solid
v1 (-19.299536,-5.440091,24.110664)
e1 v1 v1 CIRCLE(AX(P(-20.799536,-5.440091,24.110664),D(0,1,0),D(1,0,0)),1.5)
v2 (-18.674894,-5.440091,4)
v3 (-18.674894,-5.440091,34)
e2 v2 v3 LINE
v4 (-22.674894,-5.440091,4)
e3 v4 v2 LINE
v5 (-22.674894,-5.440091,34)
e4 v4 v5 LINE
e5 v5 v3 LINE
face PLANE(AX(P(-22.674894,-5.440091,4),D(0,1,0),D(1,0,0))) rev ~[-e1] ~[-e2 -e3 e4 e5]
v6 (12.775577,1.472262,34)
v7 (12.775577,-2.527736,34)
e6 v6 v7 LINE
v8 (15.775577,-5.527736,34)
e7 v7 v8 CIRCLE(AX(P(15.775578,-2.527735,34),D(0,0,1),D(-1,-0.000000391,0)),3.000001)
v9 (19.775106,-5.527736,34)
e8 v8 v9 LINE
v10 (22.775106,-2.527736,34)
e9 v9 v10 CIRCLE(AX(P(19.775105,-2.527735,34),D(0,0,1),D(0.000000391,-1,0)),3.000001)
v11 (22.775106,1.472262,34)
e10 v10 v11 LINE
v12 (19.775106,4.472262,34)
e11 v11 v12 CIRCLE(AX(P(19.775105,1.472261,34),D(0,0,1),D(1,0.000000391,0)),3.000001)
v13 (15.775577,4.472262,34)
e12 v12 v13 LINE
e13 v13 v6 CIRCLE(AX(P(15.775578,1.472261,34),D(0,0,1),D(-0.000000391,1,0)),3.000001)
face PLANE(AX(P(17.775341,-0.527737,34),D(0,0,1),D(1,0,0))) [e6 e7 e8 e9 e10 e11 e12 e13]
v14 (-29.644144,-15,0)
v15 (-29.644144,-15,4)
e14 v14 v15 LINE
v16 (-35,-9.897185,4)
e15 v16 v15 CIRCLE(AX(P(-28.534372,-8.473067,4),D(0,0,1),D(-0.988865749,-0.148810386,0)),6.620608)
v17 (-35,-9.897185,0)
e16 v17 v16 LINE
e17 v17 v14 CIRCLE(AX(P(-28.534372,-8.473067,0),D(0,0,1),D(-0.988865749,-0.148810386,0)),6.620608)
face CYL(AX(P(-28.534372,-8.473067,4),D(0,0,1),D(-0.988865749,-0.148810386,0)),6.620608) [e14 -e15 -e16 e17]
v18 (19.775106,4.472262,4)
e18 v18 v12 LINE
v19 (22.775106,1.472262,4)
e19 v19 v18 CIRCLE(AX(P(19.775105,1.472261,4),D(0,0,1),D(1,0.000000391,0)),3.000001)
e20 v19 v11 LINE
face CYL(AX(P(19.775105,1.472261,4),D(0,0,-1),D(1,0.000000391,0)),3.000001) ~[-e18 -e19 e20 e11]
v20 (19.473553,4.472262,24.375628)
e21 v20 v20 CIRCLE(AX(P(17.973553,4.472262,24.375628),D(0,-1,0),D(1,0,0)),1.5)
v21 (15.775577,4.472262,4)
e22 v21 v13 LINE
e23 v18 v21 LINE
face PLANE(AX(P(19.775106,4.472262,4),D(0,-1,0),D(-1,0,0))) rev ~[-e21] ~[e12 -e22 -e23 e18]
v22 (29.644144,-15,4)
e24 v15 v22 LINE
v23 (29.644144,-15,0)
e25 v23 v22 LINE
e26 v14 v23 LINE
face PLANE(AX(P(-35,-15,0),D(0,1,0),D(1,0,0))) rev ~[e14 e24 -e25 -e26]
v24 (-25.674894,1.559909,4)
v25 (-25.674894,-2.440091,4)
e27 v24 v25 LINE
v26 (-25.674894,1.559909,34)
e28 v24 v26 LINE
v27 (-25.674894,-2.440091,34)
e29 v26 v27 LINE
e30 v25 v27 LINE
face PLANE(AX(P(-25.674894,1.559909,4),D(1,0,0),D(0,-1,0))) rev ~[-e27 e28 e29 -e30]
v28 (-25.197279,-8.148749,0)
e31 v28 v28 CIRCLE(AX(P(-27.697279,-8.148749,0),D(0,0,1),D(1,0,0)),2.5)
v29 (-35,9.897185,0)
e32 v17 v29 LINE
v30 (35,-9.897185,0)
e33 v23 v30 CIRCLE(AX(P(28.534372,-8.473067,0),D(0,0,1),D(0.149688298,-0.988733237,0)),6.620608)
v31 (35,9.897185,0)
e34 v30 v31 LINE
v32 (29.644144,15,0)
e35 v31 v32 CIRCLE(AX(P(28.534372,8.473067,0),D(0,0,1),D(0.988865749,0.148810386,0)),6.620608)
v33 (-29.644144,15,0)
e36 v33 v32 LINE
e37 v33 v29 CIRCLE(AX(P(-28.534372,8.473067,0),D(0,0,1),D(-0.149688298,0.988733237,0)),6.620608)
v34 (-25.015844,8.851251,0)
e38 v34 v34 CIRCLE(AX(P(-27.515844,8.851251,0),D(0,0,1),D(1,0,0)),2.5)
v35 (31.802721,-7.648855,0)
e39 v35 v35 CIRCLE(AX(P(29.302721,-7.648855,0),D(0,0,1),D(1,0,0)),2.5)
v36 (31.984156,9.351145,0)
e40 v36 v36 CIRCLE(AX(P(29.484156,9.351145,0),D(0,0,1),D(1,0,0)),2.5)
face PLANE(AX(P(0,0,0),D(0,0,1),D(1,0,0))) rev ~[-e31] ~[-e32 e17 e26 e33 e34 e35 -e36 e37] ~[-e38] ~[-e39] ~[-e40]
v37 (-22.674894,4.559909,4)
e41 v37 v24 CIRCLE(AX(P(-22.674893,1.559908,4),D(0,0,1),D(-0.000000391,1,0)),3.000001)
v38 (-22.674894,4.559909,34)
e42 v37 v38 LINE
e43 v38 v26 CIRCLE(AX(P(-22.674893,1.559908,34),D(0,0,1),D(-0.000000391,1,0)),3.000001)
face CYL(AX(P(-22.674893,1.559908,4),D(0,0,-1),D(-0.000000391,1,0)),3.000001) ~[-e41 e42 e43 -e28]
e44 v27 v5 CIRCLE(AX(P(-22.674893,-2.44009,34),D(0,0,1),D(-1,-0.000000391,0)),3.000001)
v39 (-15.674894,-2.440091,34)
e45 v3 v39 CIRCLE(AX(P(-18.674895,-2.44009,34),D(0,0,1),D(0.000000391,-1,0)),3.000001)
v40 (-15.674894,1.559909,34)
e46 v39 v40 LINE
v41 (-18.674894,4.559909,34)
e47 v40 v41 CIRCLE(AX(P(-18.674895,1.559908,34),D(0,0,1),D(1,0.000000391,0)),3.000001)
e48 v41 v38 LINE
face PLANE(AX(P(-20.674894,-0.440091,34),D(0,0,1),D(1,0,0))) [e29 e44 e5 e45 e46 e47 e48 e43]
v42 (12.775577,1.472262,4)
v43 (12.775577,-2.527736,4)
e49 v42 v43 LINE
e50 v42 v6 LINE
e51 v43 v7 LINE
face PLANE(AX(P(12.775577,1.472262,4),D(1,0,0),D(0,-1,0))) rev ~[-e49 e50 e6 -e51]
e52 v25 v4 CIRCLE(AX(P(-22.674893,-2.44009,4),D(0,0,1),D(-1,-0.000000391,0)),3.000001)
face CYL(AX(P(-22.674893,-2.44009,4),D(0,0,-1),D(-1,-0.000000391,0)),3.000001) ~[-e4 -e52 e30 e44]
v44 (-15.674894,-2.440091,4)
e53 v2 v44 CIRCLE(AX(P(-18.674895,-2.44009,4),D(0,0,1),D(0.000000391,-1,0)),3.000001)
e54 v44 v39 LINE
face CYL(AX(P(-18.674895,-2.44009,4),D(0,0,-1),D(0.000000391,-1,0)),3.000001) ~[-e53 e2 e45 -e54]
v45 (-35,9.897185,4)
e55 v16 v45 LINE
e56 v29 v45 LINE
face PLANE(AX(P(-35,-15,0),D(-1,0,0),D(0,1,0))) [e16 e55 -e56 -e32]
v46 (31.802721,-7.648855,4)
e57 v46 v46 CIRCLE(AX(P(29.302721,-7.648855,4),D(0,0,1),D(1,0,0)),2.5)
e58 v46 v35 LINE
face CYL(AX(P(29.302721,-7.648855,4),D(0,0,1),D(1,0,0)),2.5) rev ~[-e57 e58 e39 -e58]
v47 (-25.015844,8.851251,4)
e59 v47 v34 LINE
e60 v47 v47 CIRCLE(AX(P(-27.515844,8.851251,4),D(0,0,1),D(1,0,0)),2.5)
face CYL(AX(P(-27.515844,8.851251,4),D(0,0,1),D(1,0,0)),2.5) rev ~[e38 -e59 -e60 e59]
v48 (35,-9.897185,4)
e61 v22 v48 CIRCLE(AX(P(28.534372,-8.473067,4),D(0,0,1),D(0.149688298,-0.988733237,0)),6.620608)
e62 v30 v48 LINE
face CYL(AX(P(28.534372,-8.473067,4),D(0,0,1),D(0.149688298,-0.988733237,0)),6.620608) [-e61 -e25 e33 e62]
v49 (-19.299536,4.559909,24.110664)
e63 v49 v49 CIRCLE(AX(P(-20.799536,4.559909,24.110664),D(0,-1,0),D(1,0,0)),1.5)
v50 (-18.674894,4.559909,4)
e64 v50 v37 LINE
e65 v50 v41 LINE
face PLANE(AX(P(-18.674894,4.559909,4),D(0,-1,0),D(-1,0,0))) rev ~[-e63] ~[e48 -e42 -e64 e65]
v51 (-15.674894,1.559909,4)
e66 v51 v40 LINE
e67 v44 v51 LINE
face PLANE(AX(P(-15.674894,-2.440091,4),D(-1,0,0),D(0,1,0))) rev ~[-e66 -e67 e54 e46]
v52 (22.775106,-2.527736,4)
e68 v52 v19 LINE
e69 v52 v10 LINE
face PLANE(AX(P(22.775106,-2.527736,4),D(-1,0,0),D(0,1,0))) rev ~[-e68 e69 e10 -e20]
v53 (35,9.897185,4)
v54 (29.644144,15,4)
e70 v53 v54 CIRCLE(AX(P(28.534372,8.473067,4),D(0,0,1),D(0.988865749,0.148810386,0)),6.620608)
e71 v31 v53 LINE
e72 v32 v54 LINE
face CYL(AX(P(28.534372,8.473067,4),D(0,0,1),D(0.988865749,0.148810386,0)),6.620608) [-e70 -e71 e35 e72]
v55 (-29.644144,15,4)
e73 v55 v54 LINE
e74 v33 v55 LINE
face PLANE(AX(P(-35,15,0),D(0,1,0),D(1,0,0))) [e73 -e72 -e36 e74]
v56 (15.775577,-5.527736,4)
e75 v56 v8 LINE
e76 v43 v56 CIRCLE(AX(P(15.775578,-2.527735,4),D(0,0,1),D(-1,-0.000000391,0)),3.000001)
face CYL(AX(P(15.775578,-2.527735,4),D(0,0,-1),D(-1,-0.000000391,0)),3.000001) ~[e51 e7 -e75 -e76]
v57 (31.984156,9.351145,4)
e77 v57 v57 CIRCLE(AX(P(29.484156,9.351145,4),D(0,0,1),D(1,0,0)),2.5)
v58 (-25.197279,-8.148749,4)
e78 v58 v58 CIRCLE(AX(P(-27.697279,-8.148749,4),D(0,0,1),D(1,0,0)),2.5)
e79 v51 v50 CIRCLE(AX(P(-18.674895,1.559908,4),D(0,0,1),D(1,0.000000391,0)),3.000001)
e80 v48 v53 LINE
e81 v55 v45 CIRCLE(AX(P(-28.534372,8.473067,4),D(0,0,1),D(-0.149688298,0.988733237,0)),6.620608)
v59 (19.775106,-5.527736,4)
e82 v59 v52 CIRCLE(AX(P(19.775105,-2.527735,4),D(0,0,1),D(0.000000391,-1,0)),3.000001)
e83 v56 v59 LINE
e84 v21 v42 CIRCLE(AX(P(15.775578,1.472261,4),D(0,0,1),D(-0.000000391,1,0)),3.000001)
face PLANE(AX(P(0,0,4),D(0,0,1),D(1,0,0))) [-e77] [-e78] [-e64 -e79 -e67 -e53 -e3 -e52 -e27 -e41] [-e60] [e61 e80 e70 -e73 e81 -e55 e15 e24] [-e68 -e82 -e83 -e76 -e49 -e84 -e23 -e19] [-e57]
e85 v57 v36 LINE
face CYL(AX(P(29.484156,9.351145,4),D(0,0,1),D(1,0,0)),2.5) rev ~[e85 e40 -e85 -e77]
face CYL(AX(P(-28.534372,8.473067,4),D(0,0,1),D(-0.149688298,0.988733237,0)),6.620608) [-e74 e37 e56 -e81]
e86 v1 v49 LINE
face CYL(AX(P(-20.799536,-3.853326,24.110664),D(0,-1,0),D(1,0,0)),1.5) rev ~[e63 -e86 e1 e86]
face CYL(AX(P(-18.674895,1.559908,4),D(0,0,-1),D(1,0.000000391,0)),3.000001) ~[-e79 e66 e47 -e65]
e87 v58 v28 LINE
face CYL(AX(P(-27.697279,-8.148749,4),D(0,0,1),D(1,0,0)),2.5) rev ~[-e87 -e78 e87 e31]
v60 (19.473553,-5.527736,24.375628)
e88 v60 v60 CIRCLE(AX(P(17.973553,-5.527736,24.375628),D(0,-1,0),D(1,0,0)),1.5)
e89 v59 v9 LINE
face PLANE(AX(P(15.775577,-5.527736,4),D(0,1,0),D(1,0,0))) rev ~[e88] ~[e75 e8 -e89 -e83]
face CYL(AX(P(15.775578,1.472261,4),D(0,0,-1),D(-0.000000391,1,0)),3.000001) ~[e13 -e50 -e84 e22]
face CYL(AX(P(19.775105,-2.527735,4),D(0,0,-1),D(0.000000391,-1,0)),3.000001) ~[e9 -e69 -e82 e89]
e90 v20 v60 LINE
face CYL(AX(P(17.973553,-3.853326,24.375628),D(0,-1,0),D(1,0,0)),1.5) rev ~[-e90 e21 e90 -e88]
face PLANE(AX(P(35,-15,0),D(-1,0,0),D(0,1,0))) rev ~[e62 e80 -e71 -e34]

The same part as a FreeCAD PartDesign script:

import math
import FreeCAD as App
import Part
import Sketcher


def add_polygon(sketch, points):
    """Adds a closed chain of lines whose ends are joined by coincident constraints."""
    first, n = sketch.GeometryCount, len(points)
    for a, b in zip(points, points[1:] + points[:1]):
        sketch.addGeometry(Part.LineSegment(App.Vector(*a, 0), App.Vector(*b, 0)), False)
    for i in range(n):
        sketch.addConstraint(Sketcher.Constraint("Coincident", first + i, 2, first + (i + 1) % n, 1))

doc = App.newDocument("Part")
body = doc.addObject("PartDesign::Body", "Body")

sketch1 = body.newObject("Sketcher::SketchObject", "Sketch")
sketch1.AttachmentSupport = (doc.getObject("XY_Plane"), [""])
sketch1.MapMode = "FlatFace"
add_polygon(sketch1, [(-35, 15), (-35, -15), (35, -15), (35, 15)])
sketch1.addConstraint([
    Sketcher.Constraint("Vertical", 0),
    Sketcher.Constraint("Horizontal", 1),
    Sketcher.Constraint("Vertical", 2),
    Sketcher.Constraint("Horizontal", 3),
    Sketcher.Constraint("Symmetric", 0, 2, 2, 2, -1, 1),
    Sketcher.Constraint("DistanceX", 1, 1, 1, 2, 70.0),
    Sketcher.Constraint("DistanceY", 0, 2, 0, 1, 30.0),
])
pad1 = body.newObject("PartDesign::Pad", "Pad")
pad1.Profile = sketch1
pad1.Length = 4

sketch2 = body.newObject("Sketcher::SketchObject", "Sketch001")
sketch2.AttachmentSupport = (doc.getObject("XY_Plane"), [""])
sketch2.MapMode = "FlatFace"
sketch2.AttachmentOffset = App.Placement(App.Vector(0, 0, 4), App.Rotation())
sketch2.addGeometry([
    Part.LineSegment(App.Vector(-25.674894, 1.559909, 0), App.Vector(-25.674894, -2.440091, 0)),
    Part.ArcOfCircle(Part.Circle(App.Vector(-22.674893, -2.44009, 0), App.Vector(0, 0, 1), 3.000001), math.radians(-179.999978), math.radians(-90.000022)),
    Part.LineSegment(App.Vector(-22.674894, -5.440091, 0), App.Vector(-18.674894, -5.440091, 0)),
    Part.ArcOfCircle(Part.Circle(App.Vector(-18.674895, -2.44009, 0), App.Vector(0, 0, 1), 3.000001), math.radians(-89.999978), math.radians(-0.000022)),
    Part.LineSegment(App.Vector(-15.674894, -2.440091, 0), App.Vector(-15.674894, 1.559909, 0)),
    Part.ArcOfCircle(Part.Circle(App.Vector(-18.674895, 1.559908, 0), App.Vector(0, 0, 1), 3.000001), math.radians(0.000022), math.radians(89.999978)),
    Part.LineSegment(App.Vector(-18.674894, 4.559909, 0), App.Vector(-22.674894, 4.559909, 0)),
    Part.ArcOfCircle(Part.Circle(App.Vector(-22.674893, 1.559908, 0), App.Vector(0, 0, 1), 3.000001), math.radians(90.000022), math.radians(179.999978)),
    Part.LineSegment(App.Vector(12.775577, 1.472262, 0), App.Vector(12.775577, -2.527736, 0)),
    Part.ArcOfCircle(Part.Circle(App.Vector(15.775578, -2.527735, 0), App.Vector(0, 0, 1), 3.000001), math.radians(-179.999978), math.radians(-90.000022)),
    Part.LineSegment(App.Vector(15.775577, -5.527736, 0), App.Vector(19.775106, -5.527736, 0)),
    Part.ArcOfCircle(Part.Circle(App.Vector(19.775105, -2.527735, 0), App.Vector(0, 0, 1), 3.000001), math.radians(-89.999978), math.radians(-0.000022)),
    Part.LineSegment(App.Vector(22.775106, -2.527736, 0), App.Vector(22.775106, 1.472262, 0)),
    Part.ArcOfCircle(Part.Circle(App.Vector(19.775105, 1.472261, 0), App.Vector(0, 0, 1), 3.000001), math.radians(0.000022), math.radians(89.999978)),
    Part.LineSegment(App.Vector(19.775106, 4.472262, 0), App.Vector(15.775577, 4.472262, 0)),
    Part.ArcOfCircle(Part.Circle(App.Vector(15.775578, 1.472261, 0), App.Vector(0, 0, 1), 3.000001), math.radians(90.000022), math.radians(179.999978)),
], False)
sketch2.addConstraint([
    Sketcher.Constraint("Tangent", 0, 2, 1, 1),
    Sketcher.Constraint("Tangent", 1, 2, 2, 1),
    Sketcher.Constraint("Tangent", 2, 2, 3, 1),
    Sketcher.Constraint("Tangent", 3, 2, 4, 1),
    Sketcher.Constraint("Tangent", 4, 2, 5, 1),
    Sketcher.Constraint("Tangent", 5, 2, 6, 1),
    Sketcher.Constraint("Tangent", 6, 2, 7, 1),
    Sketcher.Constraint("Tangent", 7, 2, 0, 1),
    Sketcher.Constraint("Tangent", 8, 2, 9, 1),
    Sketcher.Constraint("Tangent", 9, 2, 10, 1),
    Sketcher.Constraint("Tangent", 10, 2, 11, 1),
    Sketcher.Constraint("Tangent", 11, 2, 12, 1),
    Sketcher.Constraint("Tangent", 12, 2, 13, 1),
    Sketcher.Constraint("Tangent", 13, 2, 14, 1),
    Sketcher.Constraint("Tangent", 14, 2, 15, 1),
    Sketcher.Constraint("Tangent", 15, 2, 8, 1),
    Sketcher.Constraint("Vertical", 0),
    Sketcher.Constraint("Horizontal", 2),
    Sketcher.Constraint("Vertical", 4),
    Sketcher.Constraint("Horizontal", 6),
    Sketcher.Constraint("Vertical", 8),
    Sketcher.Constraint("Horizontal", 10),
    Sketcher.Constraint("Vertical", 12),
    Sketcher.Constraint("Horizontal", 14),
    Sketcher.Constraint("Equal", 1, 3),
    Sketcher.Constraint("Equal", 3, 5),
    Sketcher.Constraint("Equal", 5, 7),
    Sketcher.Constraint("Equal", 7, 9),
    Sketcher.Constraint("Equal", 9, 11),
    Sketcher.Constraint("Equal", 11, 13),
    Sketcher.Constraint("Equal", 13, 15),
    Sketcher.Constraint("Equal", 6, 0),
    Sketcher.Constraint("Radius", 1, 3.000001),
    Sketcher.Constraint("DistanceX", 2, 1, 2, 2, 4.0),
    Sketcher.Constraint("DistanceY", 8, 2, 15, 2, 3.999998),
    Sketcher.Constraint("DistanceX", 3, 3, 11, 3, 38.45),
    Sketcher.Constraint("DistanceX", 10, 1, 10, 2, 3.999529),
    Sketcher.Constraint("DistanceY", 1, 3, -1, 1, 2.44009),
    Sketcher.Constraint("DistanceX", -1, 1, 9, 3, 15.775578),
    Sketcher.Constraint("DistanceY", -1, 1, 13, 3, 1.472261),
])
pad2 = body.newObject("PartDesign::Pad", "Pad001")
pad2.Profile = sketch2
pad2.Length = 30

sketch3 = body.newObject("Sketcher::SketchObject", "Sketch002")
sketch3.AttachmentSupport = (doc.getObject("XZ_Plane"), [""])
sketch3.MapMode = "FlatFace"
sketch3.AttachmentOffset = App.Placement(App.Vector(0, 0, 3.853326), App.Rotation())
sketch3.addGeometry([
    Part.Circle(App.Vector(-20.799536, 24.110664, 0), App.Vector(0, 0, 1), 1.5),
    Part.Circle(App.Vector(17.973553, 24.375628, 0), App.Vector(0, 0, 1), 1.5),
], False)
sketch3.addConstraint([
    Sketcher.Constraint("Equal", 0, 1),
    Sketcher.Constraint("Diameter", 0, 3.0),
    Sketcher.Constraint("DistanceX", 0, 3, 1, 3, 38.773089),
    Sketcher.Constraint("DistanceX", 0, 3, -1, 1, 20.799536),
    Sketcher.Constraint("DistanceY", -1, 1, 0, 3, 24.110664),
    Sketcher.Constraint("DistanceY", -1, 1, 1, 3, 24.375628),
])
pocket1 = body.newObject("PartDesign::Pocket", "Pocket")
pocket1.Profile = sketch3
pocket1.Length = 20
pocket1.Midplane = True

sketch4 = body.newObject("Sketcher::SketchObject", "Sketch003")
sketch4.AttachmentSupport = (doc.getObject("XY_Plane"), [""])
sketch4.MapMode = "FlatFace"
sketch4.AttachmentOffset = App.Placement(App.Vector(0, 0, 4), App.Rotation())
sketch4.addGeometry([
    Part.Circle(App.Vector(29.484156, 9.351145, 0), App.Vector(0, 0, 1), 2.5),
    Part.Circle(App.Vector(29.302721, -7.648855, 0), App.Vector(0, 0, 1), 2.5),
    Part.Circle(App.Vector(-27.515844, 8.851251, 0), App.Vector(0, 0, 1), 2.5),
    Part.Circle(App.Vector(-27.697279, -8.148749, 0), App.Vector(0, 0, 1), 2.5),
], False)
sketch4.addConstraint([
    Sketcher.Constraint("Equal", 0, 1),
    Sketcher.Constraint("Equal", 1, 2),
    Sketcher.Constraint("Equal", 2, 3),
    Sketcher.Constraint("Diameter", 0, 5.0),
    Sketcher.Constraint("DistanceY", 1, 3, 0, 3, 17.0),
    Sketcher.Constraint("DistanceX", 2, 3, 0, 3, 57.0),
    Sketcher.Constraint("DistanceY", 3, 3, 2, 3, 17.0),
    Sketcher.Constraint("DistanceX", 3, 3, 1, 3, 57.0),
    Sketcher.Constraint("DistanceX", -1, 1, 1, 3, 29.302721),
    Sketcher.Constraint("DistanceY", -1, 1, 2, 3, 8.851251),
    Sketcher.Constraint("DistanceX", -1, 1, 0, 3, 29.484156),
    Sketcher.Constraint("DistanceY", -1, 1, 0, 3, 9.351145),
])
pocket2 = body.newObject("PartDesign::Pocket", "Pocket001")
pocket2.Profile = sketch4
pocket2.Length = 25

sketch5 = body.newObject("Sketcher::SketchObject", "Sketch004")
sketch5.AttachmentSupport = (doc.getObject("XY_Plane"), [""])
sketch5.MapMode = "FlatFace"
sketch5.AttachmentOffset = App.Placement(App.Vector(0, 0, 4), App.Rotation())
sketch5.addGeometry([
    Part.ArcOfCircle(Part.Circle(App.Vector(-28.534372, 8.473067, 0), App.Vector(0, 0, 1), 6.620608), math.radians(98.608863), math.radians(171.442007)),
    Part.LineSegment(App.Vector(-29.5254, 15.019082, 0), App.Vector(-35.081265, 15.019082, 0)),
    Part.LineSegment(App.Vector(-35.081265, 15.019082, 0), App.Vector(-35.081265, 9.458282, 0)),
    Part.ArcOfCircle(Part.Circle(App.Vector(28.534372, 8.473067, 0), App.Vector(0, 0, 1), 6.620608), math.radians(8.557993), math.radians(81.391137)),
    Part.LineSegment(App.Vector(35.081265, 9.458282, 0), App.Vector(35.081265, 15.019082, 0)),
    Part.LineSegment(App.Vector(35.081265, 15.019082, 0), App.Vector(29.5254, 15.019082, 0)),
    Part.ArcOfCircle(Part.Circle(App.Vector(-28.534372, -8.473067, 0), App.Vector(0, 0, 1), 6.620608), math.radians(-171.442007), math.radians(-98.608863)),
    Part.LineSegment(App.Vector(-35.081265, -9.458282, 0), App.Vector(-35.081265, -15.019082, 0)),
    Part.LineSegment(App.Vector(-35.081265, -15.019082, 0), App.Vector(-29.5254, -15.019082, 0)),
    Part.ArcOfCircle(Part.Circle(App.Vector(28.534372, -8.473067, 0), App.Vector(0, 0, 1), 6.620608), math.radians(-81.391137), math.radians(-8.557993)),
    Part.LineSegment(App.Vector(29.5254, -15.019082, 0), App.Vector(35.081265, -15.019082, 0)),
    Part.LineSegment(App.Vector(35.081265, -15.019082, 0), App.Vector(35.081265, -9.458282, 0)),
], False)
sketch5.addConstraint([
    Sketcher.Constraint("Coincident", 0, 1, 1, 1),
    Sketcher.Constraint("Coincident", 1, 2, 2, 1),
    Sketcher.Constraint("Coincident", 2, 2, 0, 2),
    Sketcher.Constraint("Coincident", 3, 1, 4, 1),
    Sketcher.Constraint("Coincident", 4, 2, 5, 1),
    Sketcher.Constraint("Coincident", 5, 2, 3, 2),
    Sketcher.Constraint("Coincident", 6, 1, 7, 1),
    Sketcher.Constraint("Coincident", 7, 2, 8, 1),
    Sketcher.Constraint("Coincident", 8, 2, 6, 2),
    Sketcher.Constraint("Coincident", 9, 1, 10, 1),
    Sketcher.Constraint("Coincident", 10, 2, 11, 1),
    Sketcher.Constraint("Coincident", 11, 2, 9, 2),
    Sketcher.Constraint("Horizontal", 1),
    Sketcher.Constraint("Vertical", 2),
    Sketcher.Constraint("Vertical", 4),
    Sketcher.Constraint("Horizontal", 5),
    Sketcher.Constraint("Vertical", 7),
    Sketcher.Constraint("Horizontal", 8),
    Sketcher.Constraint("Horizontal", 10),
    Sketcher.Constraint("Vertical", 11),
    Sketcher.Constraint("Equal", 0, 3),
    Sketcher.Constraint("Equal", 3, 6),
    Sketcher.Constraint("Equal", 6, 9),
    Sketcher.Constraint("Symmetric", 3, 3, 6, 3, -1, 1),
    Sketcher.Constraint("Symmetric", 0, 3, 9, 3, -1, 1),
    Sketcher.Constraint("Symmetric", 4, 2, 7, 2, -1, 1),
    Sketcher.Constraint("Symmetric", 1, 2, 10, 2, -1, 1),
    Sketcher.Constraint("Symmetric", 0, 3, 3, 3, -2),
    Sketcher.Constraint("Symmetric", 1, 2, 4, 2, -2),
    Sketcher.Constraint("Radius", 0, 6.620608),
    Sketcher.Constraint("DistanceY", 2, 2, 2, 1, 5.5608),
    Sketcher.Constraint("DistanceX", 0, 1, -1, 1, 29.5254),
    Sketcher.Constraint("DistanceX", 1, 2, 1, 1, 5.555865),
    Sketcher.Constraint("DistanceY", -1, 1, 1, 2, 15.019082),
])
pocket3 = body.newObject("PartDesign::Pocket", "Pocket002")
pocket3.Profile = sketch5
pocket3.Length = 5

doc.recompute()
